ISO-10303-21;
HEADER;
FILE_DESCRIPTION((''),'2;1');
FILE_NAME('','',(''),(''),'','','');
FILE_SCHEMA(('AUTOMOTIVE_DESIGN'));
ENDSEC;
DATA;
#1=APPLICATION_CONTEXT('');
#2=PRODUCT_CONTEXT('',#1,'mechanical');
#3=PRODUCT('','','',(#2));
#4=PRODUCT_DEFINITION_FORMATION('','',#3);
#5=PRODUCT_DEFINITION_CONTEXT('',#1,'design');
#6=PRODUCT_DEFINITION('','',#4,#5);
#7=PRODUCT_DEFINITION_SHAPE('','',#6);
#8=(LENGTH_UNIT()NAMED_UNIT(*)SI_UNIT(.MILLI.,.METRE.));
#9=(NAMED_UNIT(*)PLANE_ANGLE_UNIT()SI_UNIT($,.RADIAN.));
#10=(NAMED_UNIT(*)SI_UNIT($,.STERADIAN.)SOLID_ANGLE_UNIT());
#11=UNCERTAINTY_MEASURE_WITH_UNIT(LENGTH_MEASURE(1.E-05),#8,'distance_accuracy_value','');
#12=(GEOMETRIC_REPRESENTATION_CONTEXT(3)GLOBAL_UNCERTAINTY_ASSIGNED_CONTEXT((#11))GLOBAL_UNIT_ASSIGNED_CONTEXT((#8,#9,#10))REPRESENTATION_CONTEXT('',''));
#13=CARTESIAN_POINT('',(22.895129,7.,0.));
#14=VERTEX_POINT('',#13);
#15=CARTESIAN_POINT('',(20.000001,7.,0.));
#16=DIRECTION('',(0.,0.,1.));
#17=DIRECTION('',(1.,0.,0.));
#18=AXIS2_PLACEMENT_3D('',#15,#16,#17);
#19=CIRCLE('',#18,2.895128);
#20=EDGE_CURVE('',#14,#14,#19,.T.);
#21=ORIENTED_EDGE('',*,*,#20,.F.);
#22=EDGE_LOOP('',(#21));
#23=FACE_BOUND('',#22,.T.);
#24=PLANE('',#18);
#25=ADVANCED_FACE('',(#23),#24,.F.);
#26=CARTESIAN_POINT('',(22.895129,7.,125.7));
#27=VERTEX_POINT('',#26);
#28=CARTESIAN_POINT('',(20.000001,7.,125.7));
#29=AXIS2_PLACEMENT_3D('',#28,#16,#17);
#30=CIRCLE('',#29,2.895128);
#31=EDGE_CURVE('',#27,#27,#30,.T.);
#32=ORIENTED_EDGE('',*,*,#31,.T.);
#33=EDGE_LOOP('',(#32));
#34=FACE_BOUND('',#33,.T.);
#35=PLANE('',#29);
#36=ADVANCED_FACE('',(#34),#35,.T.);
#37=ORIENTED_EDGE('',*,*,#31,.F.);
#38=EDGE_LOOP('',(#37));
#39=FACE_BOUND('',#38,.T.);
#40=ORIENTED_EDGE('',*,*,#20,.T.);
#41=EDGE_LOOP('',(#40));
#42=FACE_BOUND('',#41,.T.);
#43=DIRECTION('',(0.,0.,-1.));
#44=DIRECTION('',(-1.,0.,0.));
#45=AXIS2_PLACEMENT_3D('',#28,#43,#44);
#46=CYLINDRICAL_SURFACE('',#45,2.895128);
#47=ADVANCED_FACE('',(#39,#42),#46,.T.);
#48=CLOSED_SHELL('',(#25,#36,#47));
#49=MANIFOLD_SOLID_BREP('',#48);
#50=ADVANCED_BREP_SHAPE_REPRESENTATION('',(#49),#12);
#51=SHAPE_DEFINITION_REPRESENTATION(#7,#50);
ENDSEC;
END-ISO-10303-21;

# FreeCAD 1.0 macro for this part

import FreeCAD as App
import Part
import Sketcher

doc = App.newDocument("Part")
body = doc.addObject("PartDesign::Body", "Body")

# Sketch on XY plane
sketch1 = body.newObject("Sketcher::SketchObject", "Sketch")
sketch1.AttachmentSupport = (doc.getObject("XY_Plane"), [""])
sketch1.MapMode = "FlatFace"
sketch1.addGeometry(Part.Circle(App.Vector(20, 7, 0), App.Vector(0, 0, 1), 2.9), False)
sketch1.addConstraint([
    Sketcher.Constraint("DistanceX", -1, 1, 0, 3, 20.000001),
    Sketcher.Constraint("DistanceY", -1, 1, 0, 3, 7.0),
    Sketcher.Constraint("Diameter", 0, 5.790256),
])
pad1 = body.newObject("PartDesign::Pad", "Pad")
pad1.Profile = sketch1
pad1.Length = 125.7

doc.recompute()
